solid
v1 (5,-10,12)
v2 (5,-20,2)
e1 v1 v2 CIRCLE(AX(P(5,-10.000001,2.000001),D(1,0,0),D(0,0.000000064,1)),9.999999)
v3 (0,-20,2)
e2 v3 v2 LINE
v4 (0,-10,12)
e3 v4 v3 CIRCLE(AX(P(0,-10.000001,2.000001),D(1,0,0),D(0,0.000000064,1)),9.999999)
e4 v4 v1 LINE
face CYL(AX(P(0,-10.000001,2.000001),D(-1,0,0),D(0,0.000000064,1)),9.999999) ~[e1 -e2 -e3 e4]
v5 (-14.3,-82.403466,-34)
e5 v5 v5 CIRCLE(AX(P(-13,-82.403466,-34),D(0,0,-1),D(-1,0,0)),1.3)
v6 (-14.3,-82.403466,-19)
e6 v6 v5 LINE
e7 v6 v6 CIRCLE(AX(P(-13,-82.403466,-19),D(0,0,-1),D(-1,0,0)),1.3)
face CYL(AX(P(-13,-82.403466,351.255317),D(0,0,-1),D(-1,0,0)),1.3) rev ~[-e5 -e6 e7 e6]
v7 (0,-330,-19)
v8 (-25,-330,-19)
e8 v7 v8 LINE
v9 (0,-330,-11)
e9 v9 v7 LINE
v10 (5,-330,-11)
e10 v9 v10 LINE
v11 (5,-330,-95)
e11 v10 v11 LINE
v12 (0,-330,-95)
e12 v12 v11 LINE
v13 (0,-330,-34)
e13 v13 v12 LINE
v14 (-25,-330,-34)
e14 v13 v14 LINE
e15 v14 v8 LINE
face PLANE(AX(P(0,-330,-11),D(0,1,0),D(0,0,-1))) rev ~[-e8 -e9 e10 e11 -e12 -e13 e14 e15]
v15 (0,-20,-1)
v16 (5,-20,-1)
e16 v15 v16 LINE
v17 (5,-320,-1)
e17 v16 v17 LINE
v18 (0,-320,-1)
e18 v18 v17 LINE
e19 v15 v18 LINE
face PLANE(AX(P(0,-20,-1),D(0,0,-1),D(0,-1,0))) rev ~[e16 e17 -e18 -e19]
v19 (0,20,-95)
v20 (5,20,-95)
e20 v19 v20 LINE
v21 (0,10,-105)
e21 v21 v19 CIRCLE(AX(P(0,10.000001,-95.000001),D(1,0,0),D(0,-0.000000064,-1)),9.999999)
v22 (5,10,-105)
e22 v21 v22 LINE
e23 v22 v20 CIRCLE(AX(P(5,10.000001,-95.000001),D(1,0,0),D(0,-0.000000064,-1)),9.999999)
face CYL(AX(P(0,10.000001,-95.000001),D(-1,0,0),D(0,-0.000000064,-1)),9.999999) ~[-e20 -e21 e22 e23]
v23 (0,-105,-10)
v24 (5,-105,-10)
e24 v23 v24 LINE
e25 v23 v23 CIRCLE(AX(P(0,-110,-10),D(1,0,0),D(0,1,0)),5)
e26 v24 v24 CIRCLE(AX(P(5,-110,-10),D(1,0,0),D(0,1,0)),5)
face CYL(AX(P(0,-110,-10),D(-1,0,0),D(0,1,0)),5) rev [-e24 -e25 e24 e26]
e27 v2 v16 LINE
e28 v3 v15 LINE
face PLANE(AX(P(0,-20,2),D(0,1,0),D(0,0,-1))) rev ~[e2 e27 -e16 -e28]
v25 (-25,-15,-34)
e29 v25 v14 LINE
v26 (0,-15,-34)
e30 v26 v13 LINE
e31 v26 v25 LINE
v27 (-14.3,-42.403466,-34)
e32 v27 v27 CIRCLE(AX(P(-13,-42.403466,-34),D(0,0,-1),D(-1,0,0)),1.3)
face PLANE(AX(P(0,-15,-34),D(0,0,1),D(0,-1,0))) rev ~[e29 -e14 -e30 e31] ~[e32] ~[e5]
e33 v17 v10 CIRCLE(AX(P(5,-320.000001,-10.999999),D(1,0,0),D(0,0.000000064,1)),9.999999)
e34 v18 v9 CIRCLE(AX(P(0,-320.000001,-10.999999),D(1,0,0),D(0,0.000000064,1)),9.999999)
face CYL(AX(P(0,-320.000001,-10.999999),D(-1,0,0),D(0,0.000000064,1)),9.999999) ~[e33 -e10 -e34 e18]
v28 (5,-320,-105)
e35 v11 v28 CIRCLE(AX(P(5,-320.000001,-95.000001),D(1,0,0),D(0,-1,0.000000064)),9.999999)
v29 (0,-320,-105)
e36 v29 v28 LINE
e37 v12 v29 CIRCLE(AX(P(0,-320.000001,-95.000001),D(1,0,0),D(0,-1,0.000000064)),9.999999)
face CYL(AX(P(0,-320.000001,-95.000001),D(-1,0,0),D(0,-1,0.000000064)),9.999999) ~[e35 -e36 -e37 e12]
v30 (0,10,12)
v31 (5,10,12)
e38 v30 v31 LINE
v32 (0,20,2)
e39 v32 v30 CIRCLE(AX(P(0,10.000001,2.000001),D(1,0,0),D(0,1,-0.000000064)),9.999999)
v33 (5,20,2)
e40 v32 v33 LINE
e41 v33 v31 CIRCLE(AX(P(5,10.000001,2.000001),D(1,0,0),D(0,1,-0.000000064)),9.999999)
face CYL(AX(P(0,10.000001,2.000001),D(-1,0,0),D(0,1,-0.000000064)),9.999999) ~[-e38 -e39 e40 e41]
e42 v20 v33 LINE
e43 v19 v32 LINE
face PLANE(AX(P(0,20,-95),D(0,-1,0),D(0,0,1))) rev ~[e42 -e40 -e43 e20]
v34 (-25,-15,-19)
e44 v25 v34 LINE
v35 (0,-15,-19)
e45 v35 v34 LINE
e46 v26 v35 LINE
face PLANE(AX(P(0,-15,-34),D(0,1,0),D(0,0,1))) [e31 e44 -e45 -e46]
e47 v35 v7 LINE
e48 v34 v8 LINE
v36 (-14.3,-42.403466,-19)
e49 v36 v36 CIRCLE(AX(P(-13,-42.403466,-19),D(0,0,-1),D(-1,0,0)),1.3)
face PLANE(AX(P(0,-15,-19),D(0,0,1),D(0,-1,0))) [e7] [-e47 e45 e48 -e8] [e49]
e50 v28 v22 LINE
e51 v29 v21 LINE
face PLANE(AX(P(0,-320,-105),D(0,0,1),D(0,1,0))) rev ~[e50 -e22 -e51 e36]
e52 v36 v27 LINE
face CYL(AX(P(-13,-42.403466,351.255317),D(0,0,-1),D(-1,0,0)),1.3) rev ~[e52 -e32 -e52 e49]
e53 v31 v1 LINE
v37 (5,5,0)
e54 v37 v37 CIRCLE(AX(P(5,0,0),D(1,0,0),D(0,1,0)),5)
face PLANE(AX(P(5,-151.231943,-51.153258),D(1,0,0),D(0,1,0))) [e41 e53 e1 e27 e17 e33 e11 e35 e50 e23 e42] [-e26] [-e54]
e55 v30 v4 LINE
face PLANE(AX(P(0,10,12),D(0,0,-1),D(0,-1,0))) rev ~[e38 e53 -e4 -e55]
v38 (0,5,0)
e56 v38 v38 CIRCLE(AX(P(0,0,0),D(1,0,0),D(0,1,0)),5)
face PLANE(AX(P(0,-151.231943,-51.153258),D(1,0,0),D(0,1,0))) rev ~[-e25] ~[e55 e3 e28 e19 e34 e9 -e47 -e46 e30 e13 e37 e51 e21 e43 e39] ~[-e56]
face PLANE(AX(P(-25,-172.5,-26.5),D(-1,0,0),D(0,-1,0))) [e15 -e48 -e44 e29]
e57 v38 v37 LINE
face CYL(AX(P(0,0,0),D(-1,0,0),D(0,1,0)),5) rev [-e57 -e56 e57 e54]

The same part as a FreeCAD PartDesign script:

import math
import FreeCAD as App
import Part
import Sketcher

V = App.Vector
Q = App.Units.Quantity

doc = App.newDocument("Part")
body = doc.addObject("PartDesign::Body", "Body")

# Sketch on YZ plane
sketch1 = doc.addObject("Sketcher::SketchObject", "Sketch")
body.addObject(sketch1)
sketch1.AttachmentSupport = (doc.YZ_Plane, [""])
sketch1.MapMode = "FlatFace"
sketch1.addGeometry(Part.LineSegment(V(-20, -1, 0), V(-320, -1, 0)), False)
sketch1.addGeometry(Part.ArcOfCircle(Part.Circle(V(-320, -11, 0), V(0, 0, 1), 10), math.radians(90), math.radians(180)), False)
sketch1.addGeometry(Part.LineSegment(V(-330, -11, 0), V(-330, -95, 0)), False)
sketch1.addGeometry(Part.ArcOfCircle(Part.Circle(V(-320, -95, 0), V(0, 0, 1), 10), math.radians(180), math.radians(270)), False)
sketch1.addGeometry(Part.LineSegment(V(-320, -105, 0), V(10, -105, 0)), False)
sketch1.addGeometry(Part.ArcOfCircle(Part.Circle(V(10, -95, 0), V(0, 0, 1), 10), math.radians(-90), math.radians(0)), False)
sketch1.addGeometry(Part.LineSegment(V(20, -95, 0), V(20, 2, 0)), False)
sketch1.addGeometry(Part.ArcOfCircle(Part.Circle(V(10, 2, 0), V(0, 0, 1), 10), math.radians(0), math.radians(90)), False)
sketch1.addGeometry(Part.LineSegment(V(10, 12, 0), V(-10, 12, 0)), False)
sketch1.addGeometry(Part.ArcOfCircle(Part.Circle(V(-10, 2, 0), V(0, 0, 1), 10), math.radians(90), math.radians(180)), False)
sketch1.addGeometry(Part.LineSegment(V(-20, 2, 0), V(-20, -1, 0)), False)
sketch1.addGeometry(Part.Circle(V(-110, -10, 0), V(0, 0, 1), 5), False)
sketch1.addGeometry(Part.Circle(V(0, 0, 0), V(0, 0, 1), 5), False)
sketch1.addConstraint(Sketcher.Constraint("Tangent", 0, 2, 1, 1))
sketch1.addConstraint(Sketcher.Constraint("Tangent", 1, 2, 2, 1))
sketch1.addConstraint(Sketcher.Constraint("Tangent", 2, 2, 3, 1))
sketch1.addConstraint(Sketcher.Constraint("Tangent", 3, 2, 4, 1))
sketch1.addConstraint(Sketcher.Constraint("Tangent", 4, 2, 5, 1))
sketch1.addConstraint(Sketcher.Constraint("Tangent", 5, 2, 6, 1))
sketch1.addConstraint(Sketcher.Constraint("Tangent", 6, 2, 7, 1))
sketch1.addConstraint(Sketcher.Constraint("Tangent", 7, 2, 8, 1))
sketch1.addConstraint(Sketcher.Constraint("Tangent", 8, 2, 9, 1))
sketch1.addConstraint(Sketcher.Constraint("Tangent", 9, 2, 10, 1))
sketch1.addConstraint(Sketcher.Constraint("Coincident", 10, 2, 0, 1))
sketch1.addConstraint(Sketcher.Constraint("Horizontal", 0))
sketch1.addConstraint(Sketcher.Constraint("Vertical", 2))
sketch1.addConstraint(Sketcher.Constraint("Horizontal", 4))
sketch1.addConstraint(Sketcher.Constraint("Vertical", 6))
sketch1.addConstraint(Sketcher.Constraint("Horizontal", 8))
sketch1.addConstraint(Sketcher.Constraint("Vertical", 10))
sketch1.addConstraint(Sketcher.Constraint("Coincident", 12, 3, -1, 1))
sketch1.addConstraint(Sketcher.Constraint("Equal", 1, 3))
sketch1.addConstraint(Sketcher.Constraint("Equal", 3, 5))
sketch1.addConstraint(Sketcher.Constraint("Equal", 5, 7))
sketch1.addConstraint(Sketcher.Constraint("Equal", 7, 9))
sketch1.addConstraint(Sketcher.Constraint("Equal", 11, 12))
sketch1.addConstraint(Sketcher.Constraint("Diameter", 11, Q("10 mm")))
sketch1.addConstraint(Sketcher.Constraint("Radius", 1, Q("9.999999 mm")))
sketch1.addConstraint(Sketcher.Constraint("DistanceX", 0, 2, 0, 1, Q("300 mm")))
sketch1.addConstraint(Sketcher.Constraint("DistanceX", 4, 1, 4, 2, Q("330 mm")))
sketch1.addConstraint(Sketcher.Constraint("DistanceY", 2, 2, 2, 1, Q("84 mm")))
sketch1.addConstraint(Sketcher.Constraint("DistanceY", 6, 1, 6, 2, Q("97 mm")))
sketch1.addConstraint(Sketcher.Constraint("DistanceX", 1, 3, -1, 1, Q("320.000001 mm")))
sketch1.addConstraint(Sketcher.Constraint("DistanceY", 1, 3, -1, 1, Q("10.999999 mm")))
sketch1.addConstraint(Sketcher.Constraint("DistanceX", 11, 3, -1, 1, Q("110 mm")))
sketch1.addConstraint(Sketcher.Constraint("DistanceY", 11, 3, -1, 1, Q("10 mm")))
pad1 = doc.addObject("PartDesign::Pad", "Pad")
body.addObject(pad1)
pad1.Profile = sketch1
pad1.Length = 5

# Sketch on YZ plane
sketch2 = doc.addObject("Sketcher::SketchObject", "Sketch001")
body.addObject(sketch2)
sketch2.AttachmentSupport = (doc.YZ_Plane, [""])
sketch2.MapMode = "FlatFace"
sketch2.addGeometry(Part.LineSegment(V(-15, -19, 0), V(-15, -34, 0)), False)
sketch2.addGeometry(Part.LineSegment(V(-15, -34, 0), V(-330, -34, 0)), False)
sketch2.addGeometry(Part.LineSegment(V(-330, -34, 0), V(-330, -19, 0)), False)
sketch2.addGeometry(Part.LineSegment(V(-330, -19, 0), V(-15, -19, 0)), False)
sketch2.addConstraint(Sketcher.Constraint("Coincident", 0, 2, 1, 1))
sketch2.addConstraint(Sketcher.Constraint("Coincident", 1, 2, 2, 1))
sketch2.addConstraint(Sketcher.Constraint("Coincident", 2, 2, 3, 1))
sketch2.addConstraint(Sketcher.Constraint("Coincident", 3, 2, 0, 1))
sketch2.addConstraint(Sketcher.Constraint("Vertical", 0))
sketch2.addConstraint(Sketcher.Constraint("Horizontal", 1))
sketch2.addConstraint(Sketcher.Constraint("Vertical", 2))
sketch2.addConstraint(Sketcher.Constraint("Horizontal", 3))
sketch2.addConstraint(Sketcher.Constraint("DistanceX", 1, 2, 1, 1, Q("315 mm")))
sketch2.addConstraint(Sketcher.Constraint("DistanceY", 0, 2, 0, 1, Q("15 mm")))
sketch2.addConstraint(Sketcher.Constraint("DistanceX", 0, 2, -1, 1, Q("15 mm")))
sketch2.addConstraint(Sketcher.Constraint("DistanceY", 0, 2, -1, 1, Q("34 mm")))
pad2 = doc.addObject("PartDesign::Pad", "Pad001")
body.addObject(pad2)
pad2.Profile = sketch2
pad2.Length = 25
pad2.Reversed = True

# Sketch on XY plane
sketch3 = doc.addObject("Sketcher::SketchObject", "Sketch002")
body.addObject(sketch3)
sketch3.AttachmentSupport = (doc.XY_Plane, [""])
sketch3.MapMode = "FlatFace"
sketch3.AttachmentOffset = App.Placement(V(0, 0, -19), App.Rotation())
sketch3.addGeometry(Part.Circle(V(-13, -42.4, 0), V(0, 0, 1), 1.3), False)
sketch3.addGeometry(Part.Circle(V(-13, -82.4, 0), V(0, 0, 1), 1.3), False)
sketch3.addConstraint(Sketcher.Constraint("Equal", 0, 1))
sketch3.addConstraint(Sketcher.Constraint("Vertical", 0, 3, 1, 3))
sketch3.addConstraint(Sketcher.Constraint("Diameter", 0, Q("2.6 mm")))
sketch3.addConstraint(Sketcher.Constraint("DistanceX", 0, 3, -1, 1, Q("13 mm")))
sketch3.addConstraint(Sketcher.Constraint("DistanceY", 1, 3, 0, 3, Q("40 mm")))
sketch3.addConstraint(Sketcher.Constraint("DistanceY", 0, 3, -1, 1, Q("42.403466 mm")))
doc.recompute()
hole = doc.addObject("PartDesign::Hole", "Hole")
body.addObject(hole)
hole.Profile = sketch3
hole.ThreadType = "None"
hole.Diameter = 2.6
hole.DepthType = "ThroughAll"

doc.recompute()
